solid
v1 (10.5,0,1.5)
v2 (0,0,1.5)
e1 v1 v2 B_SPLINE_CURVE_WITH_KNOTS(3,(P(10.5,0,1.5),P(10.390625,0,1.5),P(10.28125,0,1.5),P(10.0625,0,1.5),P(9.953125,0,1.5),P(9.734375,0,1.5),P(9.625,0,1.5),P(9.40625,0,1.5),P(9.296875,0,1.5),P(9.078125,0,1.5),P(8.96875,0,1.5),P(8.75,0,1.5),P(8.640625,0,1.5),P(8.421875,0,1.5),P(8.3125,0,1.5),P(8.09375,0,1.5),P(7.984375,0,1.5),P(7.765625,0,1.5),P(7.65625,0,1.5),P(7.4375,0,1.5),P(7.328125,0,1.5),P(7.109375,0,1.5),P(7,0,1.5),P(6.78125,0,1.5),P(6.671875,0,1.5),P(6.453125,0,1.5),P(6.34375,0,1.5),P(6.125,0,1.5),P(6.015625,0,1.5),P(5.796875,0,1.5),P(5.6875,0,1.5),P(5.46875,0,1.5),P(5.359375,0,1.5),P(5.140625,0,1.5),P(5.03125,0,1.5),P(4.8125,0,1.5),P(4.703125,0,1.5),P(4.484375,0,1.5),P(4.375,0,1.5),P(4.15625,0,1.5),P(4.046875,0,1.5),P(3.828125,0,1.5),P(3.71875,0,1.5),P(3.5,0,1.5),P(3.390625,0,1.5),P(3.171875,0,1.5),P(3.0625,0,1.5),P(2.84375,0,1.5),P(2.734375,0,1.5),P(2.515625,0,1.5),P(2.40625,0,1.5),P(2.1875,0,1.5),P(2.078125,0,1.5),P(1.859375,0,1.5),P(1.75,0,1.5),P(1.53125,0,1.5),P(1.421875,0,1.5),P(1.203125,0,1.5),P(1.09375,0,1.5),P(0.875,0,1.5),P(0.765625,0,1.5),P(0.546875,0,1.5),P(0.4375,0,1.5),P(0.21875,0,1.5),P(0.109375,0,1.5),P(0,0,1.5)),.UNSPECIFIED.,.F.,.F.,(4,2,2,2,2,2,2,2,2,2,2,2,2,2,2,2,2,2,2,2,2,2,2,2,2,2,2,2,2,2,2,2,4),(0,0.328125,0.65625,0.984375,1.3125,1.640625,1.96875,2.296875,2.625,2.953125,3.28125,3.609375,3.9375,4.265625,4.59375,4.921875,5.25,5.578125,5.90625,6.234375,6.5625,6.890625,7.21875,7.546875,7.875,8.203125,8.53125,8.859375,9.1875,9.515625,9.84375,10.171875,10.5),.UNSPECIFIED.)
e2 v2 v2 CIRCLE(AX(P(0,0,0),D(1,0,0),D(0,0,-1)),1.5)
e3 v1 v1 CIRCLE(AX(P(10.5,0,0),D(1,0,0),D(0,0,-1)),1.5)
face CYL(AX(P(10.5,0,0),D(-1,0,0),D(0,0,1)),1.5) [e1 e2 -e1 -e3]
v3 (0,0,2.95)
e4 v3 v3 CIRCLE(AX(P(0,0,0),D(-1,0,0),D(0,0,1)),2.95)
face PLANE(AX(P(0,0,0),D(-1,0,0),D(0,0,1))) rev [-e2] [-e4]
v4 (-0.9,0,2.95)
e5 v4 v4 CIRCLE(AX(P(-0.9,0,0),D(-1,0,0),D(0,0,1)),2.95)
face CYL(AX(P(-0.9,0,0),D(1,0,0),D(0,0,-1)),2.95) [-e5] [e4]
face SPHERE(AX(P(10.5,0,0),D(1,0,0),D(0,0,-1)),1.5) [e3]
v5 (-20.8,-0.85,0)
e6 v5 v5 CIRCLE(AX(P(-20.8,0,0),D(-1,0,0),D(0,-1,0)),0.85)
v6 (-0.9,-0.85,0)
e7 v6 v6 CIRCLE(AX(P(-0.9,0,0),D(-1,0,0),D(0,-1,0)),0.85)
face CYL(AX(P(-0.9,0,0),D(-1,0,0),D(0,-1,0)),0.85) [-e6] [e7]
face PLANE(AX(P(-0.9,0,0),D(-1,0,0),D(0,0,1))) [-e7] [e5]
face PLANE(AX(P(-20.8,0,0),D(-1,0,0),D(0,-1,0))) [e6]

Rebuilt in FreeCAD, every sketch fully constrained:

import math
import FreeCAD as App
import Part
import Sketcher
from FreeCAD import Vector

doc = App.newDocument("Part")
params = doc.addObject("Spreadsheet::Sheet", "Params")
for row, (alias, value) in enumerate([
    ("sketch1_diameter", "3 mm"),
    ("pad1_length", "10.5 mm"),
    ("sketch2_radius", "1.5 mm"),
    ("revolution_angle", "360 deg"),
    ("sketch3_diameter", "5.9 mm"),
    ("pad2_length", "0.9 mm"),
    ("sketch4_diameter", "1.7 mm"),
    ("sketch5_width", "19.9 mm"),
], start=1):
    params.set(f"A{row}", alias)
    params.set(f"B{row}", "=" + value)
    params.setAlias(f"B{row}", alias)

body = doc.addObject("PartDesign::Body", "Body")

sketch1 = body.newObject("Sketcher::SketchObject", "Sketch")
sketch1.AttachmentSupport = (doc.getObject("YZ_Plane"), [""])
sketch1.MapMode = "FlatFace"
sketch1.addGeometry(Part.Circle(Vector(0, 0, 0), Vector(0, 0, 1), 1.5), False)
sketch1.addConstraint([
    Sketcher.Constraint("Coincident", 0, 3, -1, 1),
    Sketcher.Constraint("Diameter", 0, 3.0),
])
sketch1.setExpression("Constraints[1]", "Params.sketch1_diameter")
pad1 = body.newObject("PartDesign::Pad", "Pad")
pad1.Profile = sketch1
pad1.setExpression("Length", "Params.pad1_length")

sketch2 = body.newObject("Sketcher::SketchObject", "Sketch001")
sketch2.AttachmentSupport = (doc.getObject("YZ_Plane"), [""])
sketch2.MapMode = "FlatFace"
sketch2.AttachmentOffset = App.Placement(Vector(0, 0, 10.5), App.Rotation())
sketch2.addGeometry([
    Part.LineSegment(Vector(0, 1.5, 0), Vector(0, -1.5, 0)),
    Part.ArcOfCircle(Part.Circle(Vector(0, 0, 0), Vector(0, 0, 1), 1.5), math.radians(-90), math.radians(90)),
], False)
sketch2.addConstraint([
    Sketcher.Constraint("Coincident", 0, 1, 1, 2),
    Sketcher.Constraint("Coincident", 1, 1, 0, 2),
    Sketcher.Constraint("Vertical", 0),
    Sketcher.Constraint("Coincident", 1, 3, -1, 1),
    Sketcher.Constraint("PointOnObject", 0, 1, -2),
    Sketcher.Constraint("Radius", 1, 1.5),
])
sketch2.setExpression("Constraints[5]", "Params.sketch2_radius")
revolution = body.newObject("PartDesign::Revolution", "Revolution")
revolution.Profile = sketch2
revolution.ReferenceAxis = (sketch2, ["V_Axis"])
revolution.setExpression("Angle", "Params.revolution_angle")

sketch3 = body.newObject("Sketcher::SketchObject", "Sketch002")
sketch3.AttachmentSupport = (doc.getObject("YZ_Plane"), [""])
sketch3.MapMode = "FlatFace"
sketch3.addGeometry(Part.Circle(Vector(0, 0, 0), Vector(0, 0, 1), 3), False)
sketch3.addConstraint([
    Sketcher.Constraint("Coincident", 0, 3, -1, 1),
    Sketcher.Constraint("Diameter", 0, 5.9),
])
sketch3.setExpression("Constraints[1]", "Params.sketch3_diameter")
pad2 = body.newObject("PartDesign::Pad", "Pad001")
pad2.Profile = sketch3
pad2.setExpression("Length", "Params.pad2_length")
pad2.Reversed = True

sketch4 = body.newObject("Sketcher::SketchObject", "Sketch003")
sketch4.AttachmentSupport = (doc.getObject("YZ_Plane"), [""])
sketch4.MapMode = "FlatFace"
sketch4.AttachmentOffset = App.Placement(Vector(0, 0, -0.9), App.Rotation())
sketch4.addGeometry(Part.Circle(Vector(0, 0, 0), Vector(0, 0, 1), 0.8), False)
sketch4.addConstraint([
    Sketcher.Constraint("Coincident", 0, 3, -1, 1),
    Sketcher.Constraint("Diameter", 0, 1.7),
])
sketch4.setExpression("Constraints[1]", "Params.sketch4_diameter")

sketch5 = body.newObject("Sketcher::SketchObject", "Sketch004")
sketch5.AttachmentSupport = (doc.getObject("XY_Plane"), [""])
sketch5.MapMode = "FlatFace"
sketch5.addGeometry(Part.LineSegment(Vector(-1, 0, 0), Vector(-21, 0, 0)), False)
sketch5.addConstraint([
    Sketcher.Constraint("Horizontal", 0),
    Sketcher.Constraint("PointOnObject", 0, 1, -1),
    Sketcher.Constraint("DistanceX", 0, 2, 0, 1, 19.9),
    Sketcher.Constraint("DistanceX", 0, 1, -1, 1, 0.9),
])
sketch5.setExpression("Constraints[2]", "Params.sketch5_width")
doc.recompute()

additivepipe = body.newObject("PartDesign::AdditivePipe", "AdditivePipe")
additivepipe.Profile = sketch4
additivepipe.Spine = (sketch5, ["Edge1"])

doc.recompute()
